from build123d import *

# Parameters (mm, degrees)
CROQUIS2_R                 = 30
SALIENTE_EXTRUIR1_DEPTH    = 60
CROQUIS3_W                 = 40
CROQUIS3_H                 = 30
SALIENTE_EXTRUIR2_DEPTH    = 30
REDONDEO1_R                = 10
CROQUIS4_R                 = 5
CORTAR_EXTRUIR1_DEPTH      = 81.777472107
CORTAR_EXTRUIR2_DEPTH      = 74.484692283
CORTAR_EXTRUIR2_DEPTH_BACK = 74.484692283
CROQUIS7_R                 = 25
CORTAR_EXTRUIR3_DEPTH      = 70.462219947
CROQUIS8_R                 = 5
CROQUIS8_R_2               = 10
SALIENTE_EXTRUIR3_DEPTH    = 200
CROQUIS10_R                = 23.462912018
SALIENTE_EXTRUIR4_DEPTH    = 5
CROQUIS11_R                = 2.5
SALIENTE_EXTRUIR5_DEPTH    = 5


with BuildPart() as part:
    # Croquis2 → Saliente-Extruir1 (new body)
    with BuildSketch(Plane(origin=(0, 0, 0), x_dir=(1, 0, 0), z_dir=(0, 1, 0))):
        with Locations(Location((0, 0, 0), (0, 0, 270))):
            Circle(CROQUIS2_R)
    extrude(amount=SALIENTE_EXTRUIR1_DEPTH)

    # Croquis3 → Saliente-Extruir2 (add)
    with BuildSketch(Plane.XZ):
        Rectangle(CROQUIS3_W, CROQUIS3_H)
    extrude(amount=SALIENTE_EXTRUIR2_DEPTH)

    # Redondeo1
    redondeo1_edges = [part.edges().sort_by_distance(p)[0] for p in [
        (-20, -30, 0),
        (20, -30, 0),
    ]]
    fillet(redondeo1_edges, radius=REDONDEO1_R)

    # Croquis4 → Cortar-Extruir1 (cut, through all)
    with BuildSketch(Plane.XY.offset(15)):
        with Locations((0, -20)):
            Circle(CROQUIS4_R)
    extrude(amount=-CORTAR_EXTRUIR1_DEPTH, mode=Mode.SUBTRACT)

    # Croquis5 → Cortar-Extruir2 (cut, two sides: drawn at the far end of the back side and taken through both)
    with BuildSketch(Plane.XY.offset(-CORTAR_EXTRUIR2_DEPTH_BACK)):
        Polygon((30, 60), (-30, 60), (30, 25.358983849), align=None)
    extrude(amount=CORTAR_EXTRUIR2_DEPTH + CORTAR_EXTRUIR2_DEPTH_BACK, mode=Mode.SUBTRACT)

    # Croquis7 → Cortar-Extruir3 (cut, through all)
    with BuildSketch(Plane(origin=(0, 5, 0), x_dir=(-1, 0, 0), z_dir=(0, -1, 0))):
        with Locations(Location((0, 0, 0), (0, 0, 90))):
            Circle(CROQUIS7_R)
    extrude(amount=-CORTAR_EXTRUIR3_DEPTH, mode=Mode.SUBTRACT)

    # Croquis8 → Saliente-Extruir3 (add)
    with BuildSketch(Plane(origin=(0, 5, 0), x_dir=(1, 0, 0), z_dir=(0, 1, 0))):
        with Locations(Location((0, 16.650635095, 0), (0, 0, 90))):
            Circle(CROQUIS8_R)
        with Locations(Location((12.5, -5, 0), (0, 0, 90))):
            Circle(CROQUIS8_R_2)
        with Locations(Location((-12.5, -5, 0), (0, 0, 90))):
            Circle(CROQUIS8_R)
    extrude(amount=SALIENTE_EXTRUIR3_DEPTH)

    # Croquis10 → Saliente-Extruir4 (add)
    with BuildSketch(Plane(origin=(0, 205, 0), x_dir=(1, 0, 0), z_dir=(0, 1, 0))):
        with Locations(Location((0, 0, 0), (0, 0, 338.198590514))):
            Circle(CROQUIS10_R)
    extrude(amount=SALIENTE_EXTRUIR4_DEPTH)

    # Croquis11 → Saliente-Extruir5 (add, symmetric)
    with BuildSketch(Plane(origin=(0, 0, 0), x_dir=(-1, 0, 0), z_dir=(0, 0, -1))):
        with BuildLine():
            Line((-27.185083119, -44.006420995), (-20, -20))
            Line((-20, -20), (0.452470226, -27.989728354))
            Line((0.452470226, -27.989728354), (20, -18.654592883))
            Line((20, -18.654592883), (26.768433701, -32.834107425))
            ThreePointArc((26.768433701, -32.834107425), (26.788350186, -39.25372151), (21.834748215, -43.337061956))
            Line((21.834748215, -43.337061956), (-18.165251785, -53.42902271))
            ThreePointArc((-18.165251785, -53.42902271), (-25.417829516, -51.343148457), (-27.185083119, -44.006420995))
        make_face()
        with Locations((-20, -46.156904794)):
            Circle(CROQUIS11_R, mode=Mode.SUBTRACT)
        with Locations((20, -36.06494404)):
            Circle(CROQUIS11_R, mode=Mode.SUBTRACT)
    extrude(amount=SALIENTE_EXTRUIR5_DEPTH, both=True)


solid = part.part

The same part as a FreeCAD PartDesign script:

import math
import FreeCAD as App
import Part
import Sketcher
from FreeCAD import Vector
Q = App.Units.Quantity


def edges_at(feature, points):
    """Names of the edges that pass closest to the given points."""
    edges = feature.Shape.Edges
    near = lambda p: min(range(len(edges)), key=lambda i: edges[i].distToShape(Part.Vertex(*p))[0])
    return sorted({f"Edge{near(p) + 1}" for p in points})

doc = App.newDocument("Part")
body = doc.addObject("PartDesign::Body", "Body")

sketch1 = body.newObject("Sketcher::SketchObject", "Sketch")
sketch1.AttachmentSupport = (doc.getObject("XZ_Plane"), [""])
sketch1.MapMode = "FlatFace"
sketch1.addGeometry(Part.Circle(Vector(0, 0, 0), Vector(0, 0, 1), 30), False)
sketch1.addConstraint([
    Sketcher.Constraint("Coincident", 0, 3, -1, 1),
    Sketcher.Constraint("Diameter", 0, Q("60 mm")),
])
pad1 = body.newObject("PartDesign::Pad", "Pad")
pad1.Profile = sketch1
pad1.Length = 60
pad1.Reversed = True

sketch2 = body.newObject("Sketcher::SketchObject", "Sketch001")
sketch2.AttachmentSupport = (doc.getObject("XZ_Plane"), [""])
sketch2.MapMode = "FlatFace"
sketch2.addGeometry([
    Part.LineSegment(Vector(-20, 15, 0), Vector(-20, -15, 0)),
    Part.LineSegment(Vector(-20, -15, 0), Vector(20, -15, 0)),
    Part.LineSegment(Vector(20, -15, 0), Vector(20, 15, 0)),
    Part.LineSegment(Vector(20, 15, 0), Vector(-20, 15, 0)),
], False)
sketch2.addConstraint([
    Sketcher.Constraint("Coincident", 0, 2, 1, 1),
    Sketcher.Constraint("Coincident", 1, 2, 2, 1),
    Sketcher.Constraint("Coincident", 2, 2, 3, 1),
    Sketcher.Constraint("Coincident", 3, 2, 0, 1),
    Sketcher.Constraint("Vertical", 0),
    Sketcher.Constraint("Horizontal", 1),
    Sketcher.Constraint("Vertical", 2),
    Sketcher.Constraint("Horizontal", 3),
    Sketcher.Constraint("Symmetric", 0, 2, 2, 2, -1, 1),
    Sketcher.Constraint("DistanceX", 1, 1, 1, 2, Q("40 mm")),
    Sketcher.Constraint("DistanceY", 0, 2, 0, 1, Q("30 mm")),
])
pad2 = body.newObject("PartDesign::Pad", "Pad001")
pad2.Profile = sketch2
pad2.Length = 30
doc.recompute()

fillet = body.newObject("PartDesign::Fillet", "Fillet")
fillet.Base = (pad2, edges_at(pad2, [(-20, -30, 0), (20, -30, 0)]))
fillet.Radius = 10

sketch3 = body.newObject("Sketcher::SketchObject", "Sketch002")
sketch3.AttachmentSupport = (doc.getObject("XY_Plane"), [""])
sketch3.MapMode = "FlatFace"
sketch3.AttachmentOffset = App.Placement(Vector(0, 0, 15), App.Rotation())
sketch3.addGeometry(Part.Circle(Vector(0, -20, 0), Vector(0, 0, 1), 5), False)
sketch3.addConstraint([
    Sketcher.Constraint("PointOnObject", 0, 3, -2),
    Sketcher.Constraint("Diameter", 0, Q("10 mm")),
    Sketcher.Constraint("DistanceY", 0, 3, -1, 1, Q("20 mm")),
])
pocket1 = body.newObject("PartDesign::Pocket", "Pocket")
pocket1.Profile = sketch3
pocket1.Type = "ThroughAll"

sketch4 = body.newObject("Sketcher::SketchObject", "Sketch003")
sketch4.AttachmentSupport = (doc.getObject("XY_Plane"), [""])
sketch4.MapMode = "FlatFace"
sketch4.addGeometry([
    Part.LineSegment(Vector(30, 60, 0), Vector(-30, 60, 0)),
    Part.LineSegment(Vector(-30, 60, 0), Vector(30, 25, 0)),
    Part.LineSegment(Vector(30, 25, 0), Vector(30, 60, 0)),
], False)
sketch4.addConstraint([
    Sketcher.Constraint("Coincident", 0, 2, 1, 1),
    Sketcher.Constraint("Coincident", 1, 2, 2, 1),
    Sketcher.Constraint("Coincident", 2, 2, 0, 1),
    Sketcher.Constraint("Horizontal", 0),
    Sketcher.Constraint("Vertical", 2),
    Sketcher.Constraint("DistanceX", 0, 2, 0, 1, Q("60 mm")),
    Sketcher.Constraint("Angle", 1, Q("-30 deg")),
    Sketcher.Constraint("DistanceX", 0, 2, -1, 1, Q("30 mm")),
    Sketcher.Constraint("DistanceY", -1, 1, 0, 2, Q("60 mm")),
])
pocket2 = body.newObject("PartDesign::Pocket", "Pocket001")
pocket2.Profile = sketch4
pocket2.Type = "ThroughAll"
pocket2.Midplane = True

sketch5 = body.newObject("Sketcher::SketchObject", "Sketch004")
sketch5.AttachmentSupport = (doc.getObject("XZ_Plane"), [""])
sketch5.MapMode = "FlatFace"
sketch5.AttachmentOffset = App.Placement(Vector(0, 0, -5), App.Rotation())
sketch5.addGeometry(Part.Circle(Vector(0, 0, 0), Vector(0, 0, 1), 25), False)
sketch5.addConstraint([
    Sketcher.Constraint("Coincident", 0, 3, -1, 1),
    Sketcher.Constraint("Diameter", 0, Q("50 mm")),
])
pocket3 = body.newObject("PartDesign::Pocket", "Pocket002")
pocket3.Profile = sketch5
pocket3.Type = "ThroughAll"

sketch6 = body.newObject("Sketcher::SketchObject", "Sketch005")
sketch6.AttachmentSupport = (doc.getObject("XZ_Plane"), [""])
sketch6.MapMode = "FlatFace"
sketch6.AttachmentOffset = App.Placement(Vector(0, 0, -5), App.Rotation())
sketch6.addGeometry([
    Part.Circle(Vector(0, -17, 0), Vector(0, 0, 1), 5),
    Part.Circle(Vector(12, 5, 0), Vector(0, 0, 1), 10),
    Part.Circle(Vector(-12, 5, 0), Vector(0, 0, 1), 5),
], False)
sketch6.addConstraint([
    Sketcher.Constraint("Equal", 0, 2),
    Sketcher.Constraint("Symmetric", 1, 3, 2, 3, -2),
    Sketcher.Constraint("PointOnObject", 0, 3, -2),
    Sketcher.Constraint("Diameter", 0, Q("10 mm")),
    Sketcher.Constraint("Diameter", 1, Q("20 mm")),
    Sketcher.Constraint("DistanceY", -1, 1, 1, 3, Q("5 mm")),
    Sketcher.Constraint("DistanceX", 2, 3, 1, 3, Q("25 mm")),
    Sketcher.Constraint("DistanceY", 0, 3, -1, 1, Q("16.650635 mm")),
])
pad3 = body.newObject("PartDesign::Pad", "Pad002")
pad3.Profile = sketch6
pad3.Length = 200
pad3.Reversed = True

sketch7 = body.newObject("Sketcher::SketchObject", "Sketch006")
sketch7.AttachmentSupport = (doc.getObject("XZ_Plane"), [""])
sketch7.MapMode = "FlatFace"
sketch7.AttachmentOffset = App.Placement(Vector(0, 0, -205), App.Rotation())
sketch7.addGeometry(Part.Circle(Vector(0, 0, 0), Vector(0, 0, 1), 23), False)
sketch7.addConstraint([
    Sketcher.Constraint("Coincident", 0, 3, -1, 1),
    Sketcher.Constraint("Diameter", 0, Q("46.925824 mm")),
])
pad4 = body.newObject("PartDesign::Pad", "Pad003")
pad4.Profile = sketch7
pad4.Length = 5
pad4.Reversed = True

sketch8 = body.newObject("Sketcher::SketchObject", "Sketch007")
sketch8.AttachmentSupport = (doc.getObject("XY_Plane"), [""])
sketch8.MapMode = "FlatFace"
sketch8.addGeometry([
    Part.LineSegment(Vector(20, -20, 0), Vector(27.2, -44, 0)),
    Part.ArcOfCircle(Part.Circle(Vector(20, -46.2, 0), Vector(0, 0, 1), 7.5), math.radians(-104), math.radians(17)),
    Part.LineSegment(Vector(18.2, -53.4, 0), Vector(-21.8, -43.3, 0)),
    Part.ArcOfCircle(Part.Circle(Vector(-20, -36.1, 0), Vector(0, 0, 1), 7.5), math.radians(154), math.radians(256)),
    Part.LineSegment(Vector(-26.8, -32.8, 0), Vector(-20, -18.7, 0)),
    Part.LineSegment(Vector(-20, -18.7, 0), Vector(-0.5, -28, 0)),
    Part.LineSegment(Vector(-0.5, -28, 0), Vector(20, -20, 0)),
    Part.Circle(Vector(20, -46.2, 0), Vector(0, 0, 1), 2.5),
    Part.Circle(Vector(-20, -36.1, 0), Vector(0, 0, 1), 2.5),
], False)
sketch8.addConstraint([
    Sketcher.Constraint("Tangent", 0, 2, 1, 2),
    Sketcher.Constraint("Tangent", 1, 1, 2, 1),
    Sketcher.Constraint("Tangent", 2, 2, 3, 2),
    Sketcher.Constraint("Tangent", 3, 1, 4, 1),
    Sketcher.Constraint("Coincident", 4, 2, 5, 1),
    Sketcher.Constraint("Coincident", 5, 2, 6, 1),
    Sketcher.Constraint("Coincident", 6, 2, 0, 1),
    Sketcher.Constraint("Coincident", 7, 3, 1, 3),
    Sketcher.Constraint("Coincident", 8, 3, 3, 3),
    Sketcher.Constraint("Equal", 1, 3),
    Sketcher.Constraint("Equal", 7, 8),
    Sketcher.Constraint("Vertical", 8, 3, 4, 2),
    Sketcher.Constraint("Vertical", 7, 3, 6, 2),
    Sketcher.Constraint("Diameter", 7, Q("5 mm")),
    Sketcher.Constraint("Radius", 1, Q("7.5 mm")),
    Sketcher.Constraint("DistanceX", -1, 1, 1, 3, Q("20 mm")),
    Sketcher.Constraint("DistanceX", 3, 3, -1, 1, Q("20 mm")),
    Sketcher.Constraint("DistanceY", 6, 2, -1, 1, Q("20 mm")),
    Sketcher.Constraint("DistanceY", 1, 1, 0, 2, Q("9.422602 mm")),
    Sketcher.Constraint("Distance", 6, Q("21.957671 mm")),
    Sketcher.Constraint("DistanceY", 0, 2, -1, 1, Q("44.006421 mm")),
    Sketcher.Constraint("DistanceX", 5, 2, -1, 1, Q("0.45247 mm")),
    Sketcher.Constraint("DistanceY", 3, 3, 4, 2, Q("17.410351 mm")),
])
pad5 = body.newObject("PartDesign::Pad", "Pad004")
pad5.Profile = sketch8
pad5.Length = 10
pad5.Midplane = True

doc.recompute()
